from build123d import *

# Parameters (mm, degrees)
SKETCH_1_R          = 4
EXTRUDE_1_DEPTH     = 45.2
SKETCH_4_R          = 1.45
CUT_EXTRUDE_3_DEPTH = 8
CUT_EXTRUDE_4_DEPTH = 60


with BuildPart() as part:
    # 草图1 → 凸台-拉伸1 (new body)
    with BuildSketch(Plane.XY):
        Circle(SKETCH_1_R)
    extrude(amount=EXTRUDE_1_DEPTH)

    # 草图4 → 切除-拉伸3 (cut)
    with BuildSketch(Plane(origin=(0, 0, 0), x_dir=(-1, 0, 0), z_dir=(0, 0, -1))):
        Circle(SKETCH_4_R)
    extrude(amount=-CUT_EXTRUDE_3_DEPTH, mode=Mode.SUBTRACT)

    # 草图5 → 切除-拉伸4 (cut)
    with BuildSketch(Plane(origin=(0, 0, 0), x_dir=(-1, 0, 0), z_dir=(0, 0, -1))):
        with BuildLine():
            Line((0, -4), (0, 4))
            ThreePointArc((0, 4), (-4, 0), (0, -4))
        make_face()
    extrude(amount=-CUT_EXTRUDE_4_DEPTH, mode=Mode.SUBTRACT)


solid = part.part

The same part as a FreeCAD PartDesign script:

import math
import FreeCAD as App
import Part
import Sketcher

doc = App.newDocument("Part")
params = doc.addObject("Spreadsheet::Sheet", "Params")
for row, (alias, value) in enumerate([
    ("sketch1_diameter", "8 mm"),
    ("pad1_length", "45.2 mm"),
    ("sketch2_diameter", "2.9 mm"),
    ("pocket1_length", "8 mm"),
    ("sketch3_radius", "4 mm"),
    ("pocket2_length", "60 mm"),
], start=1):
    params.set(f"A{row}", alias)
    params.set(f"B{row}", "=" + value)
    params.setAlias(f"B{row}", alias)

body = doc.addObject("PartDesign::Body", "Body")

# Sketch on XY plane
sketch1 = body.newObject("Sketcher::SketchObject", "Sketch")
sketch1.AttachmentSupport = (doc.getObject("XY_Plane"), [""])
sketch1.MapMode = "FlatFace"
sketch1.addGeometry(Part.Circle(App.Vector(0, 0, 0), App.Vector(0, 0, 1), 4), False)
sketch1.addConstraint([
    Sketcher.Constraint("Coincident", 0, 3, -1, 1),
    Sketcher.Constraint("Diameter", 0, 8.0),
])
sketch1.setExpression("Constraints[1]", "Params.sketch1_diameter")
pad1 = body.newObject("PartDesign::Pad", "Pad")
pad1.Profile = sketch1
pad1.setExpression("Length", "Params.pad1_length")

# Sketch on XY plane
sketch2 = body.newObject("Sketcher::SketchObject", "Sketch001")
sketch2.AttachmentSupport = (doc.getObject("XY_Plane"), [""])
sketch2.MapMode = "FlatFace"
sketch2.addGeometry(Part.Circle(App.Vector(0, 0, 0), App.Vector(0, 0, 1), 1.4), False)
sketch2.addConstraint([
    Sketcher.Constraint("Coincident", 0, 3, -1, 1),
    Sketcher.Constraint("Diameter", 0, 2.9),
])
sketch2.setExpression("Constraints[1]", "Params.sketch2_diameter")
pocket1 = body.newObject("PartDesign::Pocket", "Pocket")
pocket1.Profile = sketch2
pocket1.setExpression("Length", "Params.pocket1_length")
pocket1.Reversed = True

# Sketch on XY plane
sketch3 = body.newObject("Sketcher::SketchObject", "Sketch002")
sketch3.AttachmentSupport = (doc.getObject("XY_Plane"), [""])
sketch3.MapMode = "FlatFace"
sketch3.addGeometry([
    Part.LineSegment(App.Vector(0, -4, 0), App.Vector(0, 4, 0)),
    Part.ArcOfCircle(Part.Circle(App.Vector(0, 0, 0), App.Vector(0, 0, 1), 4), math.radians(-90), math.radians(90)),
], False)
sketch3.addConstraint([
    Sketcher.Constraint("Coincident", 0, 1, 1, 1),
    Sketcher.Constraint("Coincident", 1, 2, 0, 2),
    Sketcher.Constraint("Vertical", 0),
    Sketcher.Constraint("Coincident", 1, 3, -1, 1),
    Sketcher.Constraint("PointOnObject", 0, 1, -2),
    Sketcher.Constraint("Radius", 1, 4.0),
])
sketch3.setExpression("Constraints[5]", "Params.sketch3_radius")
pocket2 = body.newObject("PartDesign::Pocket", "Pocket001")
pocket2.Profile = sketch3
pocket2.setExpression("Length", "Params.pocket2_length")
pocket2.Reversed = True

doc.recompute()
